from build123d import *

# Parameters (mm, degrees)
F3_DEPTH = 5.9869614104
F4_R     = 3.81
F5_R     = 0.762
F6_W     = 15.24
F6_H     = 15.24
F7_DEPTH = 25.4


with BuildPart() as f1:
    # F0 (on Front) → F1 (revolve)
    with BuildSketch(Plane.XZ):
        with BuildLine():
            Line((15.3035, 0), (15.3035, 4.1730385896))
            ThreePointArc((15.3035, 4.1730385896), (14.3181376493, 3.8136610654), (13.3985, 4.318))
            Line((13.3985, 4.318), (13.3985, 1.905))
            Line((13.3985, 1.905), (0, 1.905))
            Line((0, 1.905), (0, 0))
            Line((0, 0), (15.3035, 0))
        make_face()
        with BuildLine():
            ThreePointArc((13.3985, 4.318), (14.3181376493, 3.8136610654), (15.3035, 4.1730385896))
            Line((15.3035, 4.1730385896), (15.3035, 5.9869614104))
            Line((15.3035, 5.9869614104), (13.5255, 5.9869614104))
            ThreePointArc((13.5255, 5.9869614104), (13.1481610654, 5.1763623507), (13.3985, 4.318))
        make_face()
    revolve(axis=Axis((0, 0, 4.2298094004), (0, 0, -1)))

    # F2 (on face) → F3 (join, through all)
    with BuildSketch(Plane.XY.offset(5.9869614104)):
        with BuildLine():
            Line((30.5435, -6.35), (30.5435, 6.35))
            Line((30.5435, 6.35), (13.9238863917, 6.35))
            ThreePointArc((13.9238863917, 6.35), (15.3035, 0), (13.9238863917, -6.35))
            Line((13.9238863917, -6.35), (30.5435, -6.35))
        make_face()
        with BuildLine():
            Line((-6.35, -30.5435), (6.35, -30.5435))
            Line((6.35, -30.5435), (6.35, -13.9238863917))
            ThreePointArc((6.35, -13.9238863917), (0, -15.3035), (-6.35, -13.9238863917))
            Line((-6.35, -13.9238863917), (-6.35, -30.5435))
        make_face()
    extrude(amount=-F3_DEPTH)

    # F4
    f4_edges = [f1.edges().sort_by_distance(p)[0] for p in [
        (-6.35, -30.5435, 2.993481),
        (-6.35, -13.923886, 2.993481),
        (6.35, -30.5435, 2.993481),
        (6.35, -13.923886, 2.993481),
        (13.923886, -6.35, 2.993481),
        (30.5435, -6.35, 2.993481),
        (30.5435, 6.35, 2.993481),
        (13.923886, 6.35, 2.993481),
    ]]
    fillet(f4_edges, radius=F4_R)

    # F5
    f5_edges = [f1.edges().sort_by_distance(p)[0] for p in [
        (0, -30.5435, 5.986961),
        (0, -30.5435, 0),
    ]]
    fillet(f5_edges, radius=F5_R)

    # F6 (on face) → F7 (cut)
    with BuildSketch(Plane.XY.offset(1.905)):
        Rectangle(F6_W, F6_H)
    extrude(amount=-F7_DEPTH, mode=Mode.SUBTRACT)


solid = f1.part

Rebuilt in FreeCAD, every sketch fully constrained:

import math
import FreeCAD as App
import Part
import Sketcher
Q = App.Units.Quantity


def edges_at(feature, points):
    """Names of the edges that pass closest to the given points."""
    edges = feature.Shape.Edges
    near = lambda p: min(range(len(edges)), key=lambda i: edges[i].distToShape(Part.Vertex(*p))[0])
    return sorted({f"Edge{near(p) + 1}" for p in points})

doc = App.newDocument("Part")
body = doc.addObject("PartDesign::Body", "Body")

# Sketch on XZ plane
sketch1 = doc.addObject("Sketcher::SketchObject", "Sketch")
body.addObject(sketch1)
sketch1.AttachmentSupport = (doc.XZ_Plane, [""])
sketch1.MapMode = "FlatFace"
sketch1.addGeometry([
    Part.LineSegment(App.Vector(15.3, 0, 0), App.Vector(15.3, 6, 0)),  # 0
    Part.LineSegment(App.Vector(15.3, 6, 0), App.Vector(13.5, 6, 0)),  # 1
    Part.ArcOfCircle(Part.Circle(App.Vector(14.4, 5.1, 0), App.Vector(0, 0, 1), 1.3), math.radians(134), math.radians(217)),  # 2
    Part.LineSegment(App.Vector(13.4, 4.3, 0), App.Vector(13.4, 1.9, 0)),  # 3
    Part.LineSegment(App.Vector(13.4, 1.9, 0), App.Vector(0, 1.9, 0)),  # 4
    Part.LineSegment(App.Vector(0, 1.9, 0), App.Vector(0, 0, 0)),  # 5
    Part.LineSegment(App.Vector(0, 0, 0), App.Vector(15.3, 0, 0)),  # 6
], False)
sketch1.addConstraint([
    Sketcher.Constraint("Coincident", 0, 2, 1, 1),
    Sketcher.Constraint("Coincident", 1, 2, 2, 1),
    Sketcher.Constraint("Coincident", 2, 2, 3, 1),
    Sketcher.Constraint("Coincident", 3, 2, 4, 1),
    Sketcher.Constraint("Coincident", 4, 2, 5, 1),
    Sketcher.Constraint("Coincident", 5, 2, 6, 1),
    Sketcher.Constraint("Coincident", 6, 2, 0, 1),
    Sketcher.Constraint("Vertical", 0),
    Sketcher.Constraint("Horizontal", 1),
    Sketcher.Constraint("Vertical", 3),
    Sketcher.Constraint("Horizontal", 4),
    Sketcher.Constraint("Vertical", 5),
    Sketcher.Constraint("Horizontal", 6),
    Sketcher.Constraint("Coincident", 5, 2, -1, 1),
    Sketcher.Constraint("Radius", 2, Q("0.05 in")),
    Sketcher.Constraint("DistanceX", 1, 2, 1, 1, Q("0.07 in")),
    Sketcher.Constraint("DistanceY", -1, 1, 2, 3, Q("0.2 in")),
    Sketcher.Constraint("DistanceY", 3, 2, 3, 1, Q("0.095 in")),
    Sketcher.Constraint("DistanceY", 5, 2, 5, 1, Q("0.075 in")),
    Sketcher.Constraint("DistanceX", 4, 2, 4, 1, Q("0.5275 in")),
    Sketcher.Constraint("DistanceX", 6, 1, 6, 2, Q("0.6025 in")),
])
revolution = doc.addObject("PartDesign::Revolution", "Revolution")
body.addObject(revolution)
revolution.Profile = sketch1
revolution.ReferenceAxis = (sketch1, ["V_Axis"])
revolution.Angle = 360

# Sketch on XY plane
sketch2 = doc.addObject("Sketcher::SketchObject", "Sketch001")
body.addObject(sketch2)
sketch2.AttachmentSupport = (doc.XY_Plane, [""])
sketch2.MapMode = "FlatFace"
sketch2.AttachmentOffset = App.Placement(App.Vector(0, 0, 5.986961), App.Rotation())
sketch2.addGeometry([
    Part.LineSegment(App.Vector(31, -6, 0), App.Vector(31, 6, 0)),  # 0
    Part.LineSegment(App.Vector(31, 6, 0), App.Vector(14, 6, 0)),  # 1
    Part.ArcOfCircle(Part.Circle(App.Vector(0, 0, 0), App.Vector(0, 0, 1), 15), math.radians(-25), math.radians(25)),  # 2
    Part.LineSegment(App.Vector(14, -6, 0), App.Vector(31, -6, 0)),  # 3
    Part.LineSegment(App.Vector(-6, -31, 0), App.Vector(6, -31, 0)),  # 4
    Part.LineSegment(App.Vector(6, -31, 0), App.Vector(6, -14, 0)),  # 5
    Part.ArcOfCircle(Part.Circle(App.Vector(0, 0, 0), App.Vector(0, 0, 1), 15), math.radians(-115), math.radians(-65)),  # 6
    Part.LineSegment(App.Vector(-6, -14, 0), App.Vector(-6, -31, 0)),  # 7
], False)
sketch2.addConstraint([
    Sketcher.Constraint("Coincident", 0, 2, 1, 1),
    Sketcher.Constraint("Coincident", 1, 2, 2, 2),
    Sketcher.Constraint("Coincident", 2, 1, 3, 1),
    Sketcher.Constraint("Coincident", 3, 2, 0, 1),
    Sketcher.Constraint("Coincident", 4, 2, 5, 1),
    Sketcher.Constraint("Coincident", 5, 2, 6, 2),
    Sketcher.Constraint("Coincident", 6, 1, 7, 1),
    Sketcher.Constraint("Coincident", 7, 2, 4, 1),
    Sketcher.Constraint("Vertical", 0),
    Sketcher.Constraint("Horizontal", 1),
    Sketcher.Constraint("Horizontal", 3),
    Sketcher.Constraint("Horizontal", 4),
    Sketcher.Constraint("Vertical", 5),
    Sketcher.Constraint("Vertical", 7),
    Sketcher.Constraint("Coincident", 2, 3, -1, 1),
    Sketcher.Constraint("Coincident", 6, 3, -1, 1),
    Sketcher.Constraint("Equal", 2, 6),
    Sketcher.Constraint("Horizontal", 5, 2, 6, 1),
    Sketcher.Constraint("Vertical", 1, 2, 2, 1),
    Sketcher.Constraint("Equal", 4, 0),
    Sketcher.Constraint("Equal", 3, 5),
    Sketcher.Constraint("DistanceX", 4, 1, 4, 2, Q("0.5 in")),
    Sketcher.Constraint("Radius", 2, Q("0.6025 in")),
    Sketcher.Constraint("DistanceX", -1, 1, 0, 2, Q("1.2025 in")),
])
pad1 = doc.addObject("PartDesign::Pad", "Pad")
body.addObject(pad1)
pad1.Profile = sketch2
pad1.Length = 5.986961
pad1.Reversed = True
doc.recompute()

fillet = doc.addObject("PartDesign::Fillet", "Fillet")
body.addObject(fillet)
fillet.Base = (pad1, edges_at(pad1, [
    (-6.35, -30.544, 2.993),
    (-6.35, -13.924, 2.993),
    (6.35, -30.544, 2.993),
    (6.35, -13.924, 2.993),
    (13.924, -6.35, 2.993),
    (30.544, -6.35, 2.993),
    (30.544, 6.35, 2.993),
    (13.924, 6.35, 2.993),
]))
fillet.Radius = Q("0.15 in")
doc.recompute()

fillet2 = doc.addObject("PartDesign::Fillet", "Fillet001")
body.addObject(fillet2)
fillet2.Base = (fillet, edges_at(fillet, [(0, -30.544, 5.987), (0, -30.544, 0)]))
fillet2.Radius = Q("0.03 in")

# Sketch on XY plane
sketch3 = doc.addObject("Sketcher::SketchObject", "Sketch002")
body.addObject(sketch3)
sketch3.AttachmentSupport = (doc.XY_Plane, [""])
sketch3.MapMode = "FlatFace"
sketch3.AttachmentOffset = App.Placement(App.Vector(0, 0, 0.075 * 25.4), App.Rotation())
sketch3.addGeometry([
    Part.LineSegment(App.Vector(-8, 8, 0), App.Vector(-8, -8, 0)),
    Part.LineSegment(App.Vector(-8, -8, 0), App.Vector(8, -8, 0)),
    Part.LineSegment(App.Vector(8, -8, 0), App.Vector(8, 8, 0)),
    Part.LineSegment(App.Vector(8, 8, 0), App.Vector(-8, 8, 0)),
], False)
sketch3.addConstraint([
    Sketcher.Constraint("Coincident", 0, 2, 1, 1),
    Sketcher.Constraint("Coincident", 1, 2, 2, 1),
    Sketcher.Constraint("Coincident", 2, 2, 3, 1),
    Sketcher.Constraint("Coincident", 3, 2, 0, 1),
    Sketcher.Constraint("Vertical", 0),
    Sketcher.Constraint("Horizontal", 1),
    Sketcher.Constraint("Vertical", 2),
    Sketcher.Constraint("Horizontal", 3),
    Sketcher.Constraint("Symmetric", 0, 2, 2, 2, -1, 1),
    Sketcher.Constraint("Equal", 3, 0),
    Sketcher.Constraint("DistanceX", 1, 1, 1, 2, Q("0.6 in")),
])
pocket1 = doc.addObject("PartDesign::Pocket", "Pocket")
body.addObject(pocket1)
pocket1.Profile = sketch3
pocket1.Length = Q("1 in")

doc.recompute()
